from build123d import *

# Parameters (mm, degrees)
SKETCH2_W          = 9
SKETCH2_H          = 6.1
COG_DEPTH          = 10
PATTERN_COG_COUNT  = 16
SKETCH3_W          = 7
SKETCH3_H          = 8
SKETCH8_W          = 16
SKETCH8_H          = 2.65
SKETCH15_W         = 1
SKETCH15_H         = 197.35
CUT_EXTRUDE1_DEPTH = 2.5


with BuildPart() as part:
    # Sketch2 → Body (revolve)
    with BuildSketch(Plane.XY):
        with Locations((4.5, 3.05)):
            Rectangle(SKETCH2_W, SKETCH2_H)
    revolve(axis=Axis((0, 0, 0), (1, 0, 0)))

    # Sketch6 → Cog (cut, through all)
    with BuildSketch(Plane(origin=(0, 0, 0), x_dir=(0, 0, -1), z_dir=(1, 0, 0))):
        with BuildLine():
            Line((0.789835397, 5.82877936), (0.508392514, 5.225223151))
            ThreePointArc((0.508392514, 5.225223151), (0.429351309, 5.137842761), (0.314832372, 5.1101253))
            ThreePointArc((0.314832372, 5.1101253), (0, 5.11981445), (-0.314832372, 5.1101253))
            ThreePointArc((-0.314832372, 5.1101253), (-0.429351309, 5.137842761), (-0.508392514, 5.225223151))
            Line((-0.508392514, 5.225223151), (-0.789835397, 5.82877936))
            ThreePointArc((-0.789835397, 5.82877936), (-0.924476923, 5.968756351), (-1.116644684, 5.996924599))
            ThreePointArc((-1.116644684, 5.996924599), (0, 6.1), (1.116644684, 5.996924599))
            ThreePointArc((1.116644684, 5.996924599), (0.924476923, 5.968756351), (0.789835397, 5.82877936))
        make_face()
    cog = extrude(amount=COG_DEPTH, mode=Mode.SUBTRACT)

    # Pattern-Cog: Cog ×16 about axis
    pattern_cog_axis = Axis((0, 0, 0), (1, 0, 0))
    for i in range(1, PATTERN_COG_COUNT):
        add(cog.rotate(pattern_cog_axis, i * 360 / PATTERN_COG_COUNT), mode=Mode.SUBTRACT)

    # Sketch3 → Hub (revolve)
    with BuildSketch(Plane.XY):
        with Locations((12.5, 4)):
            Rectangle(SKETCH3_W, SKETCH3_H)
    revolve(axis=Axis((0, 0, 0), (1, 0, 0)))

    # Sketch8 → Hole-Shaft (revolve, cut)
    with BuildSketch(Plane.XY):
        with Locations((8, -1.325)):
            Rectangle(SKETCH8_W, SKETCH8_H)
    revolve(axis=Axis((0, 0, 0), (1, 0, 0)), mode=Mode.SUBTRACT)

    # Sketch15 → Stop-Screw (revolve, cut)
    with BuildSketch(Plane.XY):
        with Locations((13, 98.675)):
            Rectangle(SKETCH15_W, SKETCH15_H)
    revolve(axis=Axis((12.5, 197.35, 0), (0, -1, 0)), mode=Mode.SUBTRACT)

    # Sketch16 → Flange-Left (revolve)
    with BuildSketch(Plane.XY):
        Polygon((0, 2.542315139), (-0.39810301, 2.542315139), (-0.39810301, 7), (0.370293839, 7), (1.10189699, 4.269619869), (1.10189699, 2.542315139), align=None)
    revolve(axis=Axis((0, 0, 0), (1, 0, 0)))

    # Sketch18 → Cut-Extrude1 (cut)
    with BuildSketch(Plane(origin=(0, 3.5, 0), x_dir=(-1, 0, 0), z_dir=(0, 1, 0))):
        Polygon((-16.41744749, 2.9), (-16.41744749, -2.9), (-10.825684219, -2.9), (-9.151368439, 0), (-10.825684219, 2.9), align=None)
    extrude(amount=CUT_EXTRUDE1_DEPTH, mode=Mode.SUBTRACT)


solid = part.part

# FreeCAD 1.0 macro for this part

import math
import FreeCAD as App
import Part
import Sketcher
Q = App.Units.Quantity

doc = App.newDocument("Part")
body = doc.addObject("PartDesign::Body", "Body")

sketch1 = body.newObject("Sketcher::SketchObject", "Sketch")
sketch1.AttachmentSupport = (doc.getObject("XY_Plane"), [""])
sketch1.MapMode = "FlatFace"
sketch1.addGeometry([
    Part.LineSegment(App.Vector(0, 6, 0), App.Vector(0, 0, 0)),
    Part.LineSegment(App.Vector(0, 0, 0), App.Vector(9, 0, 0)),
    Part.LineSegment(App.Vector(9, 0, 0), App.Vector(9, 6, 0)),
    Part.LineSegment(App.Vector(9, 6, 0), App.Vector(0, 6, 0)),
], False)
sketch1.addConstraint([
    Sketcher.Constraint("Coincident", 0, 2, 1, 1),
    Sketcher.Constraint("Coincident", 1, 2, 2, 1),
    Sketcher.Constraint("Coincident", 2, 2, 3, 1),
    Sketcher.Constraint("Coincident", 3, 2, 0, 1),
    Sketcher.Constraint("Vertical", 0),
    Sketcher.Constraint("Horizontal", 1),
    Sketcher.Constraint("Vertical", 2),
    Sketcher.Constraint("Horizontal", 3),
    Sketcher.Constraint("Coincident", 0, 2, -1, 1),
    Sketcher.Constraint("DistanceX", 1, 1, 1, 2, Q("9 mm")),
    Sketcher.Constraint("DistanceY", 0, 2, 0, 1, Q("6.1 mm")),
])
revolution = body.newObject("PartDesign::Revolution", "Revolution")
revolution.Profile = sketch1
revolution.ReferenceAxis = (sketch1, ["H_Axis"])
revolution.Angle = 360

sketch2 = body.newObject("Sketcher::SketchObject", "Sketch001")
sketch2.AttachmentSupport = (doc.getObject("YZ_Plane"), [""])
sketch2.MapMode = "FlatFace"
sketch2.addGeometry([
    Part.LineSegment(App.Vector(5.23, -0.51, 0), App.Vector(5.83, -0.79, 0)),
    Part.ArcOfCircle(Part.Circle(App.Vector(5.7, -1.06, 0), App.Vector(0, 0, 1), 0.3), math.radians(-11), math.radians(65)),
    Part.ArcOfCircle(Part.Circle(App.Vector(0, 0, 0), App.Vector(0, 0, 1), 6.1), math.radians(-11), math.radians(11)),
    Part.ArcOfCircle(Part.Circle(App.Vector(5.7, 1.06, 0), App.Vector(0, 0, 1), 0.3), math.radians(-65), math.radians(11)),
    Part.LineSegment(App.Vector(5.83, 0.79, 0), App.Vector(5.23, 0.51, 0)),
    Part.ArcOfCircle(Part.Circle(App.Vector(5.31, 0.33, 0), App.Vector(0, 0, 1), 0.2), math.radians(115), math.radians(184)),
    Part.ArcOfCircle(Part.Circle(App.Vector(0, 0, 0), App.Vector(0, 0, 1), 5.12), math.radians(-3.53), math.radians(3.53)),
    Part.ArcOfCircle(Part.Circle(App.Vector(5.31, -0.33, 0), App.Vector(0, 0, 1), 0.2), math.radians(176), math.radians(245)),
], False)
sketch2.addConstraint([
    Sketcher.Constraint("Tangent", 0, 2, 1, 2),
    Sketcher.Constraint("Tangent", 1, 1, 2, 1),
    Sketcher.Constraint("Tangent", 2, 2, 3, 2),
    Sketcher.Constraint("Tangent", 3, 1, 4, 1),
    Sketcher.Constraint("Tangent", 4, 2, 5, 1),
    Sketcher.Constraint("Tangent", 5, 2, 6, 2),
    Sketcher.Constraint("Tangent", 6, 1, 7, 1),
    Sketcher.Constraint("Tangent", 7, 2, 0, 1),
    Sketcher.Constraint("Coincident", 2, 3, -1, 1),
    Sketcher.Constraint("Coincident", 6, 3, -1, 1),
    Sketcher.Constraint("Equal", 1, 3),
    Sketcher.Constraint("Equal", 5, 7),
    Sketcher.Constraint("Symmetric", 0, 2, 3, 1, -1),
    Sketcher.Constraint("Radius", 1, Q("0.3 mm")),
    Sketcher.Constraint("Radius", 2, Q("6.1 mm")),
    Sketcher.Constraint("Radius", 5, Q("0.2 mm")),
    Sketcher.Constraint("Angle", 0, Q("-25 deg")),
    Sketcher.Constraint("Radius", 6, Q("5.119815 mm")),
    Sketcher.Constraint("DistanceX", 4, 2, 2, 2, Q("0.771701 mm")),
])
pocket1 = body.newObject("PartDesign::Pocket", "Pocket")
pocket1.Profile = sketch2
pocket1.Type = "ThroughAll"
pocket1.Reversed = True
doc.recompute()

polarpattern = body.newObject("PartDesign::PolarPattern", "PolarPattern")
polarpattern.Originals = [pocket1]
polarpattern.Axis = (doc.getObject("X_Axis"), [""])
polarpattern.Angle = 360
polarpattern.Occurrences = 16
body.Tip = polarpattern

sketch3 = body.newObject("Sketcher::SketchObject", "Sketch002")
sketch3.AttachmentSupport = (doc.getObject("XY_Plane"), [""])
sketch3.MapMode = "FlatFace"
sketch3.addGeometry([
    Part.LineSegment(App.Vector(9, 8, 0), App.Vector(9, 0, 0)),
    Part.LineSegment(App.Vector(9, 0, 0), App.Vector(16, 0, 0)),
    Part.LineSegment(App.Vector(16, 0, 0), App.Vector(16, 8, 0)),
    Part.LineSegment(App.Vector(16, 8, 0), App.Vector(9, 8, 0)),
], False)
sketch3.addConstraint([
    Sketcher.Constraint("Coincident", 0, 2, 1, 1),
    Sketcher.Constraint("Coincident", 1, 2, 2, 1),
    Sketcher.Constraint("Coincident", 2, 2, 3, 1),
    Sketcher.Constraint("Coincident", 3, 2, 0, 1),
    Sketcher.Constraint("Vertical", 0),
    Sketcher.Constraint("Horizontal", 1),
    Sketcher.Constraint("Vertical", 2),
    Sketcher.Constraint("Horizontal", 3),
    Sketcher.Constraint("PointOnObject", 0, 2, -1),
    Sketcher.Constraint("DistanceX", 1, 1, 1, 2, Q("7 mm")),
    Sketcher.Constraint("DistanceY", 0, 2, 0, 1, Q("8 mm")),
    Sketcher.Constraint("DistanceX", -1, 1, 0, 2, Q("9 mm")),
])
revolution2 = body.newObject("PartDesign::Revolution", "Revolution001")
revolution2.Profile = sketch3
revolution2.ReferenceAxis = (sketch3, ["H_Axis"])
revolution2.Angle = 360

sketch4 = body.newObject("Sketcher::SketchObject", "Sketch003")
sketch4.AttachmentSupport = (doc.getObject("XY_Plane"), [""])
sketch4.MapMode = "FlatFace"
sketch4.addGeometry([
    Part.LineSegment(App.Vector(0, 0, 0), App.Vector(0, -2.6, 0)),
    Part.LineSegment(App.Vector(0, -2.6, 0), App.Vector(16, -2.6, 0)),
    Part.LineSegment(App.Vector(16, -2.6, 0), App.Vector(16, 0, 0)),
    Part.LineSegment(App.Vector(16, 0, 0), App.Vector(0, 0, 0)),
], False)
sketch4.addConstraint([
    Sketcher.Constraint("Coincident", 0, 2, 1, 1),
    Sketcher.Constraint("Coincident", 1, 2, 2, 1),
    Sketcher.Constraint("Coincident", 2, 2, 3, 1),
    Sketcher.Constraint("Coincident", 3, 2, 0, 1),
    Sketcher.Constraint("Vertical", 0),
    Sketcher.Constraint("Horizontal", 1),
    Sketcher.Constraint("Vertical", 2),
    Sketcher.Constraint("Horizontal", 3),
    Sketcher.Constraint("Coincident", 3, 2, -1, 1),
    Sketcher.Constraint("DistanceX", 1, 1, 1, 2, Q("16 mm")),
    Sketcher.Constraint("DistanceY", 0, 2, 0, 1, Q("2.65 mm")),
])
groove = body.newObject("PartDesign::Groove", "Groove")
groove.Profile = sketch4
groove.ReferenceAxis = (sketch4, ["H_Axis"])
groove.Angle = 360

sketch5 = body.newObject("Sketcher::SketchObject", "Sketch004")
sketch5.AttachmentSupport = (doc.getObject("XY_Plane"), [""])
sketch5.MapMode = "FlatFace"
sketch5.addGeometry([
    Part.LineSegment(App.Vector(12.5, 197.3, 0), App.Vector(12.5, 0, 0)),
    Part.LineSegment(App.Vector(12.5, 0, 0), App.Vector(13.5, 0, 0)),
    Part.LineSegment(App.Vector(13.5, 0, 0), App.Vector(13.5, 197.3, 0)),
    Part.LineSegment(App.Vector(13.5, 197.3, 0), App.Vector(12.5, 197.3, 0)),
], False)
sketch5.addGeometry(Part.LineSegment(App.Vector(12.5, 197.3, 0), App.Vector(12.5, 0, 0)), True)
sketch5.addConstraint([
    Sketcher.Constraint("Coincident", 0, 2, 1, 1),
    Sketcher.Constraint("Coincident", 1, 2, 2, 1),
    Sketcher.Constraint("Coincident", 2, 2, 3, 1),
    Sketcher.Constraint("Coincident", 3, 2, 0, 1),
    Sketcher.Constraint("Vertical", 0),
    Sketcher.Constraint("Horizontal", 1),
    Sketcher.Constraint("Vertical", 2),
    Sketcher.Constraint("Horizontal", 3),
    Sketcher.Constraint("Vertical", 4),
    Sketcher.Constraint("Coincident", 4, 1, 3, 2),
    Sketcher.Constraint("PointOnObject", 0, 2, -1),
    Sketcher.Constraint("PointOnObject", 4, 2, -1),
    Sketcher.Constraint("DistanceX", 1, 1, 1, 2, Q("1 mm")),
    Sketcher.Constraint("DistanceY", 0, 2, 0, 1, Q("197.35 mm")),
    Sketcher.Constraint("DistanceX", -1, 1, 0, 2, Q("12.5 mm")),
])
groove2 = body.newObject("PartDesign::Groove", "Groove001")
groove2.Profile = sketch5
groove2.ReferenceAxis = (sketch5, ["Axis0"])
groove2.Angle = 360

sketch6 = body.newObject("Sketcher::SketchObject", "Sketch005")
sketch6.AttachmentSupport = (doc.getObject("XY_Plane"), [""])
sketch6.MapMode = "FlatFace"
sketch6.addGeometry([
    Part.LineSegment(App.Vector(-0.4, 2.5, 0), App.Vector(1.1, 2.5, 0)),
    Part.LineSegment(App.Vector(1.1, 2.5, 0), App.Vector(1.1, 4.3, 0)),
    Part.LineSegment(App.Vector(1.1, 4.3, 0), App.Vector(0.4, 7, 0)),
    Part.LineSegment(App.Vector(0.4, 7, 0), App.Vector(-0.4, 7, 0)),
    Part.LineSegment(App.Vector(-0.4, 7, 0), App.Vector(-0.4, 2.5, 0)),
], False)
sketch6.addConstraint([
    Sketcher.Constraint("Coincident", 0, 2, 1, 1),
    Sketcher.Constraint("Coincident", 1, 2, 2, 1),
    Sketcher.Constraint("Coincident", 2, 2, 3, 1),
    Sketcher.Constraint("Coincident", 3, 2, 4, 1),
    Sketcher.Constraint("Coincident", 4, 2, 0, 1),
    Sketcher.Constraint("Horizontal", 0),
    Sketcher.Constraint("Vertical", 1),
    Sketcher.Constraint("Horizontal", 3),
    Sketcher.Constraint("Vertical", 4),
    Sketcher.Constraint("Angle", 2, Q("105 deg")),
    Sketcher.Constraint("DistanceX", 0, 1, 0, 2, Q("1.5 mm")),
    Sketcher.Constraint("DistanceY", -1, 1, 2, 2, Q("7 mm")),
    Sketcher.Constraint("DistanceX", 3, 2, 3, 1, Q("0.768397 mm")),
    Sketcher.Constraint("DistanceY", 1, 1, 1, 2, Q("1.727305 mm")),
    Sketcher.Constraint("DistanceX", -1, 1, 0, 2, Q("1.101897 mm")),
])
revolution3 = body.newObject("PartDesign::Revolution", "Revolution002")
revolution3.Profile = sketch6
revolution3.ReferenceAxis = (sketch6, ["H_Axis"])
revolution3.Angle = 360

sketch7 = body.newObject("Sketcher::SketchObject", "Sketch006")
sketch7.AttachmentSupport = (doc.getObject("XZ_Plane"), [""])
sketch7.MapMode = "FlatFace"
sketch7.AttachmentOffset = App.Placement(App.Vector(0, 0, -3.5), App.Rotation())
sketch7.addGeometry([
    Part.LineSegment(App.Vector(16.4, 2.9, 0), App.Vector(16.4, -2.9, 0)),
    Part.LineSegment(App.Vector(16.4, -2.9, 0), App.Vector(10.8, -2.9, 0)),
    Part.LineSegment(App.Vector(10.8, -2.9, 0), App.Vector(9.2, 0, 0)),
    Part.LineSegment(App.Vector(9.2, 0, 0), App.Vector(10.8, 2.9, 0)),
    Part.LineSegment(App.Vector(10.8, 2.9, 0), App.Vector(16.4, 2.9, 0)),
], False)
sketch7.addConstraint([
    Sketcher.Constraint("Coincident", 0, 2, 1, 1),
    Sketcher.Constraint("Coincident", 1, 2, 2, 1),
    Sketcher.Constraint("Coincident", 2, 2, 3, 1),
    Sketcher.Constraint("Coincident", 3, 2, 4, 1),
    Sketcher.Constraint("Coincident", 4, 2, 0, 1),
    Sketcher.Constraint("Vertical", 0),
    Sketcher.Constraint("Horizontal", 1),
    Sketcher.Constraint("Horizontal", 4),
    Sketcher.Constraint("Symmetric", 1, 2, 3, 2, -1),
    Sketcher.Constraint("PointOnObject", 2, 2, -1),
    Sketcher.Constraint("Angle", 2, Q("120 deg")),
    Sketcher.Constraint("DistanceY", 0, 2, 0, 1, Q("5.8 mm")),
    Sketcher.Constraint("DistanceX", 1, 2, 1, 1, Q("5.591763 mm")),
    Sketcher.Constraint("DistanceX", -1, 1, 2, 2, Q("9.151368 mm")),
])
pocket2 = body.newObject("PartDesign::Pocket", "Pocket001")
pocket2.Profile = sketch7
pocket2.Length = 2.5

doc.recompute()
